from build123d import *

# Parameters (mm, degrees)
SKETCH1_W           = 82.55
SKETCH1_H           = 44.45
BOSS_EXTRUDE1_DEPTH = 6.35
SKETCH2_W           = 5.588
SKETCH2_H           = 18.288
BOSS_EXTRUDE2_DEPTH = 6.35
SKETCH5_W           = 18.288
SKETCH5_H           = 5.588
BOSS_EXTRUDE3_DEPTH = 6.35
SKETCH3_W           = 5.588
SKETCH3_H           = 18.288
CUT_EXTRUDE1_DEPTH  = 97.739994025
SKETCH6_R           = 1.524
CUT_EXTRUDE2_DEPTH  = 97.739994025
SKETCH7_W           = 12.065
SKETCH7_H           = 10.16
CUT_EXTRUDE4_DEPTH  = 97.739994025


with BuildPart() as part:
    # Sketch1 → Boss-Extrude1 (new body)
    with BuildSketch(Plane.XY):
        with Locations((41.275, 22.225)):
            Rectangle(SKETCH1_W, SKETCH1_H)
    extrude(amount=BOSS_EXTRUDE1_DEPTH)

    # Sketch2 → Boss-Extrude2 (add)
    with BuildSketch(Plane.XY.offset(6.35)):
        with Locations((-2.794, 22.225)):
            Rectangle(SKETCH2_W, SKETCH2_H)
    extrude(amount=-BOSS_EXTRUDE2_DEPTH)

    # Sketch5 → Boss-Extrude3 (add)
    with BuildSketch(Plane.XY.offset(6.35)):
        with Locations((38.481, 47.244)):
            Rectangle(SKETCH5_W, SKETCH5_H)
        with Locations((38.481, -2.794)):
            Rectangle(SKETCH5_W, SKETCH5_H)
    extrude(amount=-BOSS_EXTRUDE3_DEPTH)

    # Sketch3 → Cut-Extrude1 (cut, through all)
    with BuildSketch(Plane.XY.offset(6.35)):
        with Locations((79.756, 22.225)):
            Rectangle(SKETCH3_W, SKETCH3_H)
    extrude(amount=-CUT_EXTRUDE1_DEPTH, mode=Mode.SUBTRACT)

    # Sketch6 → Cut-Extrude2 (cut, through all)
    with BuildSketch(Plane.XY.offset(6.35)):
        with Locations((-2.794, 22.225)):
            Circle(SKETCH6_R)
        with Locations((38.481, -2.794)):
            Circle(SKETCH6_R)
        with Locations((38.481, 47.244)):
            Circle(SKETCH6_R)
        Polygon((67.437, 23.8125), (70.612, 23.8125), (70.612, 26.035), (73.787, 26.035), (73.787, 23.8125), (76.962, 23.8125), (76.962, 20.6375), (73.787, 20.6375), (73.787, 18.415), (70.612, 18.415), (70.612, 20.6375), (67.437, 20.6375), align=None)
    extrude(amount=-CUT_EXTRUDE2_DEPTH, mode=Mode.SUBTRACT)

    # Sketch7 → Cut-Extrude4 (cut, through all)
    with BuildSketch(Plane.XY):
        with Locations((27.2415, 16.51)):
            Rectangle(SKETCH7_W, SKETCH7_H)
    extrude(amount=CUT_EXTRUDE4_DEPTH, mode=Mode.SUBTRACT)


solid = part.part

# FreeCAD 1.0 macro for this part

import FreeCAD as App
import Part
import Sketcher
from FreeCAD import Vector
Q = App.Units.Quantity


def add_polygon(sketch, points):
    """Adds a closed chain of lines whose ends are joined by coincident constraints."""
    first, n = sketch.GeometryCount, len(points)
    for a, b in zip(points, points[1:] + points[:1]):
        sketch.addGeometry(Part.LineSegment(App.Vector(*a, 0), App.Vector(*b, 0)), False)
    for i in range(n):
        sketch.addConstraint(Sketcher.Constraint("Coincident", first + i, 2, first + (i + 1) % n, 1))

doc = App.newDocument("Part")
body = doc.addObject("PartDesign::Body", "Body")

sketch1 = doc.addObject("Sketcher::SketchObject", "Sketch")
body.addObject(sketch1)
sketch1.AttachmentSupport = (doc.XY_Plane, [""])
sketch1.MapMode = "FlatFace"
add_polygon(sketch1, [(0, 44.45), (0, 0), (82.55, 0), (82.55, 44.45)])
sketch1.addConstraint([
    Sketcher.Constraint("Vertical", 0),
    Sketcher.Constraint("Horizontal", 1),
    Sketcher.Constraint("Vertical", 2),
    Sketcher.Constraint("Horizontal", 3),
    Sketcher.Constraint("Coincident", 0, 2, -1, 1),
    Sketcher.Constraint("DistanceX", 1, 1, 1, 2, Q("3.25 in")),
    Sketcher.Constraint("DistanceY", 0, 2, 0, 1, Q("1.75 in")),
])
pad1 = doc.addObject("PartDesign::Pad", "Pad")
body.addObject(pad1)
pad1.Profile = sketch1
pad1.Length = Q("0.25 in")

sketch2 = doc.addObject("Sketcher::SketchObject", "Sketch001")
body.addObject(sketch2)
sketch2.AttachmentSupport = (doc.XY_Plane, [""])
sketch2.MapMode = "FlatFace"
sketch2.AttachmentOffset = App.Placement(Vector(0, 0, 0.25 * 25.4), App.Rotation())
add_polygon(sketch2, [(-5.588, 31.369), (-5.588, 13.081), (0, 13.081), (0, 31.369)])
sketch2.addConstraint([
    Sketcher.Constraint("Vertical", 0),
    Sketcher.Constraint("Horizontal", 1),
    Sketcher.Constraint("Vertical", 2),
    Sketcher.Constraint("Horizontal", 3),
    Sketcher.Constraint("PointOnObject", 1, 2, -2),
    Sketcher.Constraint("DistanceX", 1, 1, 1, 2, Q("0.22 in")),
    Sketcher.Constraint("DistanceY", 0, 2, 0, 1, Q("0.72 in")),
    Sketcher.Constraint("DistanceY", -1, 1, 0, 2, Q("0.515 in")),
])
pad2 = doc.addObject("PartDesign::Pad", "Pad001")
body.addObject(pad2)
pad2.Profile = sketch2
pad2.Length = Q("0.25 in")
pad2.Reversed = True

sketch3 = doc.addObject("Sketcher::SketchObject", "Sketch002")
body.addObject(sketch3)
sketch3.AttachmentSupport = (doc.XY_Plane, [""])
sketch3.MapMode = "FlatFace"
sketch3.AttachmentOffset = App.Placement(Vector(0, 0, 0.25 * 25.4), App.Rotation())
add_polygon(sketch3, [(29.337, 50.038), (29.337, 44.45), (47.625, 44.45), (47.625, 50.038)])
add_polygon(sketch3, [(29.337, 0), (29.337, -5.588), (47.625, -5.588), (47.625, 0)])
sketch3.addConstraint([
    Sketcher.Constraint("Vertical", 0),
    Sketcher.Constraint("Horizontal", 1),
    Sketcher.Constraint("Vertical", 2),
    Sketcher.Constraint("Horizontal", 3),
    Sketcher.Constraint("Vertical", 4),
    Sketcher.Constraint("Horizontal", 5),
    Sketcher.Constraint("Vertical", 6),
    Sketcher.Constraint("Horizontal", 7),
    Sketcher.Constraint("PointOnObject", 6, 2, -1),
    Sketcher.Constraint("Vertical", 3, 2, 4, 2),
    Sketcher.Constraint("Vertical", 2, 2, 5, 2),
    Sketcher.Constraint("Equal", 2, 4),
    Sketcher.Constraint("DistanceX", 1, 1, 1, 2, Q("0.72 in")),
    Sketcher.Constraint("DistanceY", 0, 2, 0, 1, Q("0.22 in")),
    Sketcher.Constraint("DistanceY", -1, 1, 0, 2, Q("1.75 in")),
    Sketcher.Constraint("DistanceX", -1, 1, 0, 2, Q("1.155 in")),
])
pad3 = doc.addObject("PartDesign::Pad", "Pad002")
body.addObject(pad3)
pad3.Profile = sketch3
pad3.Length = Q("0.25 in")
pad3.Reversed = True

sketch4 = doc.addObject("Sketcher::SketchObject", "Sketch003")
body.addObject(sketch4)
sketch4.AttachmentSupport = (doc.XY_Plane, [""])
sketch4.MapMode = "FlatFace"
sketch4.AttachmentOffset = App.Placement(Vector(0, 0, 0.25 * 25.4), App.Rotation())
add_polygon(sketch4, [(76.962, 31.369), (76.962, 13.081), (82.55, 13.081), (82.55, 31.369)])
sketch4.addConstraint([
    Sketcher.Constraint("Vertical", 0),
    Sketcher.Constraint("Horizontal", 1),
    Sketcher.Constraint("Vertical", 2),
    Sketcher.Constraint("Horizontal", 3),
    Sketcher.Constraint("DistanceX", 1, 1, 1, 2, Q("0.22 in")),
    Sketcher.Constraint("DistanceY", 0, 2, 0, 1, Q("0.72 in")),
    Sketcher.Constraint("DistanceX", -1, 1, 0, 2, Q("3.03 in")),
    Sketcher.Constraint("DistanceY", -1, 1, 0, 2, Q("0.515 in")),
])
pocket1 = doc.addObject("PartDesign::Pocket", "Pocket")
body.addObject(pocket1)
pocket1.Profile = sketch4
pocket1.Type = "ThroughAll"

sketch5 = doc.addObject("Sketcher::SketchObject", "Sketch004")
body.addObject(sketch5)
sketch5.AttachmentSupport = (doc.XY_Plane, [""])
sketch5.MapMode = "FlatFace"
sketch5.AttachmentOffset = App.Placement(Vector(0, 0, 0.25 * 25.4), App.Rotation())
sketch5.addGeometry(Part.Circle(Vector(-2.794, 22.225, 0), Vector(0, 0, 1), 1.524), False)
sketch5.addGeometry(Part.Circle(Vector(38.481, -2.794, 0), Vector(0, 0, 1), 1.524), False)
sketch5.addGeometry(Part.Circle(Vector(38.481, 47.244, 0), Vector(0, 0, 1), 1.524), False)
add_polygon(sketch5, [(70.612, 23.8125), (67.437, 23.8125), (67.437, 20.6375), (70.612, 20.6375), (70.612, 18.415), (73.787, 18.415), (73.787, 20.6375), (76.962, 20.6375), (76.962, 23.8125), (73.787, 23.8125), (73.787, 26.035), (70.612, 26.035)])
sketch5.addConstraint([
    Sketcher.Constraint("Horizontal", 3),
    Sketcher.Constraint("Vertical", 4),
    Sketcher.Constraint("Horizontal", 5),
    Sketcher.Constraint("Vertical", 6),
    Sketcher.Constraint("Horizontal", 7),
    Sketcher.Constraint("Vertical", 8),
    Sketcher.Constraint("Horizontal", 9),
    Sketcher.Constraint("Vertical", 10),
    Sketcher.Constraint("Horizontal", 11),
    Sketcher.Constraint("Vertical", 12),
    Sketcher.Constraint("Horizontal", 13),
    Sketcher.Constraint("Vertical", 14),
    Sketcher.Constraint("Equal", 0, 1),
    Sketcher.Constraint("Equal", 1, 2),
    Sketcher.Constraint("Horizontal", 5, 2, 8, 2),
    Sketcher.Constraint("Horizontal", 3, 2, 10, 2),
    Sketcher.Constraint("Vertical", 1, 3, 2, 3),
    Sketcher.Constraint("Vertical", 8, 2, 11, 2),
    Sketcher.Constraint("Vertical", 6, 2, 13, 2),
    Sketcher.Constraint("Equal", 5, 7),
    Sketcher.Constraint("Equal", 7, 9),
    Sketcher.Constraint("Equal", 13, 4),
    Sketcher.Constraint("Equal", 8, 12),
    Sketcher.Constraint("Diameter", 0, Q("0.12 in")),
    Sketcher.Constraint("DistanceX", 3, 2, 3, 1, Q("0.125 in")),
    Sketcher.Constraint("DistanceX", 0, 3, -1, 1, Q("0.11 in")),
    Sketcher.Constraint("DistanceY", 1, 3, -1, 1, Q("0.11 in")),
    Sketcher.Constraint("DistanceY", -1, 1, 2, 3, Q("1.86 in")),
    Sketcher.Constraint("DistanceX", -1, 1, 5, 2, Q("2.78 in")),
    Sketcher.Constraint("DistanceX", 2, 3, 3, 2, Q("1.14 in")),
    Sketcher.Constraint("DistanceY", 6, 2, 6, 1, Q("0.0875 in")),
    Sketcher.Constraint("DistanceY", -1, 1, 0, 3, Q("0.875 in")),
    Sketcher.Constraint("DistanceY", -1, 1, 3, 2, Q("0.9375 in")),
])
pocket2 = doc.addObject("PartDesign::Pocket", "Pocket001")
body.addObject(pocket2)
pocket2.Profile = sketch5
pocket2.Type = "ThroughAll"

sketch6 = doc.addObject("Sketcher::SketchObject", "Sketch005")
body.addObject(sketch6)
sketch6.AttachmentSupport = (doc.XY_Plane, [""])
sketch6.MapMode = "FlatFace"
add_polygon(sketch6, [(21.209, 21.59), (21.209, 11.43), (33.274, 11.43), (33.274, 21.59)])
sketch6.addConstraint([
    Sketcher.Constraint("Vertical", 0),
    Sketcher.Constraint("Horizontal", 1),
    Sketcher.Constraint("Vertical", 2),
    Sketcher.Constraint("Horizontal", 3),
    Sketcher.Constraint("DistanceY", 0, 2, 0, 1, Q("0.4 in")),
    Sketcher.Constraint("DistanceX", 1, 1, 1, 2, Q("0.475 in")),
    Sketcher.Constraint("DistanceY", -1, 1, 0, 2, Q("0.45 in")),
    Sketcher.Constraint("DistanceX", -1, 1, 1, 2, Q("1.31 in")),
])
pocket3 = doc.addObject("PartDesign::Pocket", "Pocket002")
body.addObject(pocket3)
pocket3.Profile = sketch6
pocket3.Type = "ThroughAll"
pocket3.Reversed = True

doc.recompute()
